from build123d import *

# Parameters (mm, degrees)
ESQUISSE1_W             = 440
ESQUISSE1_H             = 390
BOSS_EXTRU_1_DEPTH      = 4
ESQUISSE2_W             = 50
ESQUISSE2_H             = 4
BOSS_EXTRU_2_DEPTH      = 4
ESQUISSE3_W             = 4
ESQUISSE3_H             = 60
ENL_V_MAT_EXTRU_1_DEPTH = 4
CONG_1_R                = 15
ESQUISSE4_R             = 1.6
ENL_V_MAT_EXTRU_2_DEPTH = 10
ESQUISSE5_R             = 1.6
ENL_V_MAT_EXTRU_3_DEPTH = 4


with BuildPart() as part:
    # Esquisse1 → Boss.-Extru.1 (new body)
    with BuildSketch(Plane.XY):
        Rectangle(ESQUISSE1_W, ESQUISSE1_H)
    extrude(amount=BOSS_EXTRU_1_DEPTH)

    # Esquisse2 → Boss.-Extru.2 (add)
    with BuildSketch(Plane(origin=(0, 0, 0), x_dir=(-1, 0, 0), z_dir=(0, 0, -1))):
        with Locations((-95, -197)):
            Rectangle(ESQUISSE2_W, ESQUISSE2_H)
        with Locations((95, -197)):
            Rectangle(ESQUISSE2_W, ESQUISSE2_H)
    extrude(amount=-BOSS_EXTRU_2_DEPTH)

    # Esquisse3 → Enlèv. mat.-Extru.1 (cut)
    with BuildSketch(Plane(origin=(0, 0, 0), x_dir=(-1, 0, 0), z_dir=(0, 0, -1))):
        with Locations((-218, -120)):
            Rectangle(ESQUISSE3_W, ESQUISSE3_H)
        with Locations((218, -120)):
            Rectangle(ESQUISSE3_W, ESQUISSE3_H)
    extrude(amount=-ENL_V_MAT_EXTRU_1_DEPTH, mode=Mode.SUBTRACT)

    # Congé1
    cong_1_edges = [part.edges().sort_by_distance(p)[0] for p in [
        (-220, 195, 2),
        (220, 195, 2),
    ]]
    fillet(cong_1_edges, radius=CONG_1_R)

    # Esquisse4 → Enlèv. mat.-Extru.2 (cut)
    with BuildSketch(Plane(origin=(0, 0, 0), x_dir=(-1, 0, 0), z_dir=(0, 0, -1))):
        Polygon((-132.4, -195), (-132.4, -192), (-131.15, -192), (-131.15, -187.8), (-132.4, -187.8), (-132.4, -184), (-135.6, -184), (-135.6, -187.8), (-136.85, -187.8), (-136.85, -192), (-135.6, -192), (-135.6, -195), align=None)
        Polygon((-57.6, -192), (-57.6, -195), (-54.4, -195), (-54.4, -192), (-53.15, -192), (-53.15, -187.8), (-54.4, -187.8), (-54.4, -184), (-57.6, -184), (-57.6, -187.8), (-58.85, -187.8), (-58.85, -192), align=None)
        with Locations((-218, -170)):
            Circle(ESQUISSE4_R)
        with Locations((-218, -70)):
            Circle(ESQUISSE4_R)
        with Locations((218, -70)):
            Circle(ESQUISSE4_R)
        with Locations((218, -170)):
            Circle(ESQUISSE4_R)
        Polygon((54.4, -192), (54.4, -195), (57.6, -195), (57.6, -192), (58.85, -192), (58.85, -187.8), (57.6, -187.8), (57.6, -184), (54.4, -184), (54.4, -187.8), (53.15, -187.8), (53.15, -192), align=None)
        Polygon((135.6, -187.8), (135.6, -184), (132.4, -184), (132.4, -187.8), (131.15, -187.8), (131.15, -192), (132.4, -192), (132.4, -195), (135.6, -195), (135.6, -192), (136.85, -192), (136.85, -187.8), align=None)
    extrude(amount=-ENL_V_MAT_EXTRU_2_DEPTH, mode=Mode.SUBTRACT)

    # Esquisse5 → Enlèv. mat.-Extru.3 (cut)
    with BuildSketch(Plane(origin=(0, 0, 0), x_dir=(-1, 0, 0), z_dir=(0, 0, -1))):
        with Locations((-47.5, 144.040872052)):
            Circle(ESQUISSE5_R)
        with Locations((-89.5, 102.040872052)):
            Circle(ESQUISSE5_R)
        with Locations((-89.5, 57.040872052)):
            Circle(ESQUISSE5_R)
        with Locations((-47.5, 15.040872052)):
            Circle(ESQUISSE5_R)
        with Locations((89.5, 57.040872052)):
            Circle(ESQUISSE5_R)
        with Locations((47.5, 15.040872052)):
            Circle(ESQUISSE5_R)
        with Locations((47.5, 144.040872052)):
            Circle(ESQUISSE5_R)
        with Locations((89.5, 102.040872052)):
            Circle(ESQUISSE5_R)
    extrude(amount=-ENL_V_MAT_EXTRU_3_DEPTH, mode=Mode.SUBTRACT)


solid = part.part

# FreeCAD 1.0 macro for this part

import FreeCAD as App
import Part
import Sketcher
from FreeCAD import Vector


def edges_at(feature, points):
    """Names of the edges that pass closest to the given points."""
    edges = feature.Shape.Edges
    near = lambda p: min(range(len(edges)), key=lambda i: edges[i].distToShape(Part.Vertex(*p))[0])
    return sorted({f"Edge{near(p) + 1}" for p in points})

doc = App.newDocument("Part")
body = doc.addObject("PartDesign::Body", "Body")

sketch1 = doc.addObject("Sketcher::SketchObject", "Sketch")
body.addObject(sketch1)
sketch1.AttachmentSupport = (doc.XY_Plane, [""])
sketch1.MapMode = "FlatFace"
sketch1.addGeometry([
    Part.LineSegment(Vector(-220, 195, 0), Vector(-220, -195, 0)),
    Part.LineSegment(Vector(-220, -195, 0), Vector(220, -195, 0)),
    Part.LineSegment(Vector(220, -195, 0), Vector(220, 195, 0)),
    Part.LineSegment(Vector(220, 195, 0), Vector(-220, 195, 0)),
], False)
sketch1.addConstraint([
    Sketcher.Constraint("Coincident", 0, 2, 1, 1),
    Sketcher.Constraint("Coincident", 1, 2, 2, 1),
    Sketcher.Constraint("Coincident", 2, 2, 3, 1),
    Sketcher.Constraint("Coincident", 3, 2, 0, 1),
    Sketcher.Constraint("Vertical", 0),
    Sketcher.Constraint("Horizontal", 1),
    Sketcher.Constraint("Vertical", 2),
    Sketcher.Constraint("Horizontal", 3),
    Sketcher.Constraint("Symmetric", 0, 2, 2, 2, -1, 1),
    Sketcher.Constraint("DistanceX", 1, 1, 1, 2, 440.0),
    Sketcher.Constraint("DistanceY", 0, 2, 0, 1, 390.0),
])
pad1 = doc.addObject("PartDesign::Pad", "Pad")
body.addObject(pad1)
pad1.Profile = sketch1
pad1.Length = 4

sketch2 = doc.addObject("Sketcher::SketchObject", "Sketch001")
body.addObject(sketch2)
sketch2.AttachmentSupport = (doc.XY_Plane, [""])
sketch2.MapMode = "FlatFace"
sketch2.addGeometry([
    Part.LineSegment(Vector(120, -195, 0), Vector(120, -199, 0)),
    Part.LineSegment(Vector(120, -199, 0), Vector(70, -199, 0)),
    Part.LineSegment(Vector(70, -199, 0), Vector(70, -195, 0)),
    Part.LineSegment(Vector(70, -195, 0), Vector(120, -195, 0)),
    Part.LineSegment(Vector(-70, -195, 0), Vector(-70, -199, 0)),
    Part.LineSegment(Vector(-70, -199, 0), Vector(-120, -199, 0)),
    Part.LineSegment(Vector(-120, -199, 0), Vector(-120, -195, 0)),
    Part.LineSegment(Vector(-120, -195, 0), Vector(-70, -195, 0)),
], False)
sketch2.addConstraint([
    Sketcher.Constraint("Coincident", 0, 2, 1, 1),
    Sketcher.Constraint("Coincident", 1, 2, 2, 1),
    Sketcher.Constraint("Coincident", 2, 2, 3, 1),
    Sketcher.Constraint("Coincident", 3, 2, 0, 1),
    Sketcher.Constraint("Coincident", 4, 2, 5, 1),
    Sketcher.Constraint("Coincident", 5, 2, 6, 1),
    Sketcher.Constraint("Coincident", 6, 2, 7, 1),
    Sketcher.Constraint("Coincident", 7, 2, 4, 1),
    Sketcher.Constraint("Vertical", 0),
    Sketcher.Constraint("Horizontal", 1),
    Sketcher.Constraint("Vertical", 2),
    Sketcher.Constraint("Horizontal", 3),
    Sketcher.Constraint("Vertical", 4),
    Sketcher.Constraint("Horizontal", 5),
    Sketcher.Constraint("Vertical", 6),
    Sketcher.Constraint("Horizontal", 7),
    Sketcher.Constraint("Symmetric", 1, 2, 4, 2, -2),
    Sketcher.Constraint("Symmetric", 3, 2, 6, 2, -2),
    Sketcher.Constraint("DistanceX", 1, 2, 1, 1, 50.0),
    Sketcher.Constraint("DistanceY", 0, 2, 0, 1, 4.0),
    Sketcher.Constraint("DistanceX", -1, 1, 0, 2, 120.0),
    Sketcher.Constraint("DistanceY", 0, 2, -1, 1, 199.0),
])
pad2 = doc.addObject("PartDesign::Pad", "Pad001")
body.addObject(pad2)
pad2.Profile = sketch2
pad2.Length = 4

sketch3 = doc.addObject("Sketcher::SketchObject", "Sketch002")
body.addObject(sketch3)
sketch3.AttachmentSupport = (doc.XY_Plane, [""])
sketch3.MapMode = "FlatFace"
sketch3.addGeometry([
    Part.LineSegment(Vector(220, -90, 0), Vector(220, -150, 0)),
    Part.LineSegment(Vector(220, -150, 0), Vector(216, -150, 0)),
    Part.LineSegment(Vector(216, -150, 0), Vector(216, -90, 0)),
    Part.LineSegment(Vector(216, -90, 0), Vector(220, -90, 0)),
    Part.LineSegment(Vector(-216, -90, 0), Vector(-216, -150, 0)),
    Part.LineSegment(Vector(-216, -150, 0), Vector(-220, -150, 0)),
    Part.LineSegment(Vector(-220, -150, 0), Vector(-220, -90, 0)),
    Part.LineSegment(Vector(-220, -90, 0), Vector(-216, -90, 0)),
], False)
sketch3.addConstraint([
    Sketcher.Constraint("Coincident", 0, 2, 1, 1),
    Sketcher.Constraint("Coincident", 1, 2, 2, 1),
    Sketcher.Constraint("Coincident", 2, 2, 3, 1),
    Sketcher.Constraint("Coincident", 3, 2, 0, 1),
    Sketcher.Constraint("Coincident", 4, 2, 5, 1),
    Sketcher.Constraint("Coincident", 5, 2, 6, 1),
    Sketcher.Constraint("Coincident", 6, 2, 7, 1),
    Sketcher.Constraint("Coincident", 7, 2, 4, 1),
    Sketcher.Constraint("Vertical", 0),
    Sketcher.Constraint("Horizontal", 1),
    Sketcher.Constraint("Vertical", 2),
    Sketcher.Constraint("Horizontal", 3),
    Sketcher.Constraint("Vertical", 4),
    Sketcher.Constraint("Horizontal", 5),
    Sketcher.Constraint("Vertical", 6),
    Sketcher.Constraint("Horizontal", 7),
    Sketcher.Constraint("Symmetric", 1, 2, 4, 2, -2),
    Sketcher.Constraint("Symmetric", 3, 2, 6, 2, -2),
    Sketcher.Constraint("DistanceX", 1, 2, 1, 1, 4.0),
    Sketcher.Constraint("DistanceY", 0, 2, 0, 1, 60.0),
    Sketcher.Constraint("DistanceX", -1, 1, 0, 2, 220.0),
    Sketcher.Constraint("DistanceY", 0, 2, -1, 1, 150.0),
])
pocket1 = doc.addObject("PartDesign::Pocket", "Pocket")
body.addObject(pocket1)
pocket1.Profile = sketch3
pocket1.Length = 4
pocket1.Reversed = True
doc.recompute()

fillet = doc.addObject("PartDesign::Fillet", "Fillet")
body.addObject(fillet)
fillet.Base = (pocket1, edges_at(pocket1, [(-220, 195, 2), (220, 195, 2)]))
fillet.Radius = 15

sketch4 = doc.addObject("Sketcher::SketchObject", "Sketch003")
body.addObject(sketch4)
sketch4.AttachmentSupport = (doc.XY_Plane, [""])
sketch4.MapMode = "FlatFace"
sketch4.addGeometry([
    Part.LineSegment(Vector(132.4, -195, 0), Vector(132.4, -192, 0)),
    Part.LineSegment(Vector(132.4, -192, 0), Vector(131.15, -192, 0)),
    Part.LineSegment(Vector(131.15, -192, 0), Vector(131.15, -187.8, 0)),
    Part.LineSegment(Vector(131.15, -187.8, 0), Vector(132.4, -187.8, 0)),
    Part.LineSegment(Vector(132.4, -187.8, 0), Vector(132.4, -184, 0)),
    Part.LineSegment(Vector(132.4, -184, 0), Vector(135.6, -184, 0)),
    Part.LineSegment(Vector(135.6, -184, 0), Vector(135.6, -187.8, 0)),
    Part.LineSegment(Vector(135.6, -187.8, 0), Vector(136.85, -187.8, 0)),
    Part.LineSegment(Vector(136.85, -187.8, 0), Vector(136.85, -192, 0)),
    Part.LineSegment(Vector(136.85, -192, 0), Vector(135.6, -192, 0)),
    Part.LineSegment(Vector(135.6, -192, 0), Vector(135.6, -195, 0)),
    Part.LineSegment(Vector(135.6, -195, 0), Vector(132.4, -195, 0)),
    Part.LineSegment(Vector(57.6, -192, 0), Vector(57.6, -195, 0)),
    Part.LineSegment(Vector(57.6, -195, 0), Vector(54.4, -195, 0)),
    Part.LineSegment(Vector(54.4, -195, 0), Vector(54.4, -192, 0)),
    Part.LineSegment(Vector(54.4, -192, 0), Vector(53.15, -192, 0)),
    Part.LineSegment(Vector(53.15, -192, 0), Vector(53.15, -187.8, 0)),
    Part.LineSegment(Vector(53.15, -187.8, 0), Vector(54.4, -187.8, 0)),
    Part.LineSegment(Vector(54.4, -187.8, 0), Vector(54.4, -184, 0)),
    Part.LineSegment(Vector(54.4, -184, 0), Vector(57.6, -184, 0)),
    Part.LineSegment(Vector(57.6, -184, 0), Vector(57.6, -187.8, 0)),
    Part.LineSegment(Vector(57.6, -187.8, 0), Vector(58.85, -187.8, 0)),
    Part.LineSegment(Vector(58.85, -187.8, 0), Vector(58.85, -192, 0)),
    Part.LineSegment(Vector(58.85, -192, 0), Vector(57.6, -192, 0)),
    Part.Circle(Vector(218, -170, 0), Vector(0, 0, 1), 1.6),
    Part.Circle(Vector(218, -70, 0), Vector(0, 0, 1), 1.6),
    Part.Circle(Vector(-218, -70, 0), Vector(0, 0, 1), 1.6),
    Part.Circle(Vector(-218, -170, 0), Vector(0, 0, 1), 1.6),
    Part.LineSegment(Vector(-54.4, -192, 0), Vector(-54.4, -195, 0)),
    Part.LineSegment(Vector(-54.4, -195, 0), Vector(-57.6, -195, 0)),
    Part.LineSegment(Vector(-57.6, -195, 0), Vector(-57.6, -192, 0)),
    Part.LineSegment(Vector(-57.6, -192, 0), Vector(-58.85, -192, 0)),
    Part.LineSegment(Vector(-58.85, -192, 0), Vector(-58.85, -187.8, 0)),
    Part.LineSegment(Vector(-58.85, -187.8, 0), Vector(-57.6, -187.8, 0)),
    Part.LineSegment(Vector(-57.6, -187.8, 0), Vector(-57.6, -184, 0)),
    Part.LineSegment(Vector(-57.6, -184, 0), Vector(-54.4, -184, 0)),
    Part.LineSegment(Vector(-54.4, -184, 0), Vector(-54.4, -187.8, 0)),
    Part.LineSegment(Vector(-54.4, -187.8, 0), Vector(-53.15, -187.8, 0)),
    Part.LineSegment(Vector(-53.15, -187.8, 0), Vector(-53.15, -192, 0)),
    Part.LineSegment(Vector(-53.15, -192, 0), Vector(-54.4, -192, 0)),
    Part.LineSegment(Vector(-135.6, -187.8, 0), Vector(-135.6, -184, 0)),
    Part.LineSegment(Vector(-135.6, -184, 0), Vector(-132.4, -184, 0)),
    Part.LineSegment(Vector(-132.4, -184, 0), Vector(-132.4, -187.8, 0)),
    Part.LineSegment(Vector(-132.4, -187.8, 0), Vector(-131.15, -187.8, 0)),
    Part.LineSegment(Vector(-131.15, -187.8, 0), Vector(-131.15, -192, 0)),
    Part.LineSegment(Vector(-131.15, -192, 0), Vector(-132.4, -192, 0)),
    Part.LineSegment(Vector(-132.4, -192, 0), Vector(-132.4, -195, 0)),
    Part.LineSegment(Vector(-132.4, -195, 0), Vector(-135.6, -195, 0)),
    Part.LineSegment(Vector(-135.6, -195, 0), Vector(-135.6, -192, 0)),
    Part.LineSegment(Vector(-135.6, -192, 0), Vector(-136.85, -192, 0)),
    Part.LineSegment(Vector(-136.85, -192, 0), Vector(-136.85, -187.8, 0)),
    Part.LineSegment(Vector(-136.85, -187.8, 0), Vector(-135.6, -187.8, 0)),
], False)
sketch4.addConstraint([
    Sketcher.Constraint("Coincident", 0, 2, 1, 1),
    Sketcher.Constraint("Coincident", 1, 2, 2, 1),
    Sketcher.Constraint("Coincident", 2, 2, 3, 1),
    Sketcher.Constraint("Coincident", 3, 2, 4, 1),
    Sketcher.Constraint("Coincident", 4, 2, 5, 1),
    Sketcher.Constraint("Coincident", 5, 2, 6, 1),
    Sketcher.Constraint("Coincident", 6, 2, 7, 1),
    Sketcher.Constraint("Coincident", 7, 2, 8, 1),
    Sketcher.Constraint("Coincident", 8, 2, 9, 1),
    Sketcher.Constraint("Coincident", 9, 2, 10, 1),
    Sketcher.Constraint("Coincident", 10, 2, 11, 1),
    Sketcher.Constraint("Coincident", 11, 2, 0, 1),
    Sketcher.Constraint("Coincident", 12, 2, 13, 1),
    Sketcher.Constraint("Coincident", 13, 2, 14, 1),
    Sketcher.Constraint("Coincident", 14, 2, 15, 1),
    Sketcher.Constraint("Coincident", 15, 2, 16, 1),
    Sketcher.Constraint("Coincident", 16, 2, 17, 1),
    Sketcher.Constraint("Coincident", 17, 2, 18, 1),
    Sketcher.Constraint("Coincident", 18, 2, 19, 1),
    Sketcher.Constraint("Coincident", 19, 2, 20, 1),
    Sketcher.Constraint("Coincident", 20, 2, 21, 1),
    Sketcher.Constraint("Coincident", 21, 2, 22, 1),
    Sketcher.Constraint("Coincident", 22, 2, 23, 1),
    Sketcher.Constraint("Coincident", 23, 2, 12, 1),
    Sketcher.Constraint("Coincident", 28, 2, 29, 1),
    Sketcher.Constraint("Coincident", 29, 2, 30, 1),
    Sketcher.Constraint("Coincident", 30, 2, 31, 1),
    Sketcher.Constraint("Coincident", 31, 2, 32, 1),
    Sketcher.Constraint("Coincident", 32, 2, 33, 1),
    Sketcher.Constraint("Coincident", 33, 2, 34, 1),
    Sketcher.Constraint("Coincident", 34, 2, 35, 1),
    Sketcher.Constraint("Coincident", 35, 2, 36, 1),
    Sketcher.Constraint("Coincident", 36, 2, 37, 1),
    Sketcher.Constraint("Coincident", 37, 2, 38, 1),
    Sketcher.Constraint("Coincident", 38, 2, 39, 1),
    Sketcher.Constraint("Coincident", 39, 2, 28, 1),
    Sketcher.Constraint("Coincident", 40, 2, 41, 1),
    Sketcher.Constraint("Coincident", 41, 2, 42, 1),
    Sketcher.Constraint("Coincident", 42, 2, 43, 1),
    Sketcher.Constraint("Coincident", 43, 2, 44, 1),
    Sketcher.Constraint("Coincident", 44, 2, 45, 1),
    Sketcher.Constraint("Coincident", 45, 2, 46, 1),
    Sketcher.Constraint("Coincident", 46, 2, 47, 1),
    Sketcher.Constraint("Coincident", 47, 2, 48, 1),
    Sketcher.Constraint("Coincident", 48, 2, 49, 1),
    Sketcher.Constraint("Coincident", 49, 2, 50, 1),
    Sketcher.Constraint("Coincident", 50, 2, 51, 1),
    Sketcher.Constraint("Coincident", 51, 2, 40, 1),
    Sketcher.Constraint("Vertical", 0),
    Sketcher.Constraint("Horizontal", 1),
    Sketcher.Constraint("Vertical", 2),
    Sketcher.Constraint("Horizontal", 3),
    Sketcher.Constraint("Vertical", 4),
    Sketcher.Constraint("Horizontal", 5),
    Sketcher.Constraint("Vertical", 6),
    Sketcher.Constraint("Horizontal", 7),
    Sketcher.Constraint("Vertical", 8),
    Sketcher.Constraint("Horizontal", 9),
    Sketcher.Constraint("Vertical", 10),
    Sketcher.Constraint("Horizontal", 11),
    Sketcher.Constraint("Vertical", 12),
    Sketcher.Constraint("Horizontal", 13),
    Sketcher.Constraint("Vertical", 14),
    Sketcher.Constraint("Horizontal", 15),
    Sketcher.Constraint("Vertical", 16),
    Sketcher.Constraint("Horizontal", 17),
    Sketcher.Constraint("Vertical", 18),
    Sketcher.Constraint("Horizontal", 19),
    Sketcher.Constraint("Vertical", 20),
    Sketcher.Constraint("Horizontal", 21),
    Sketcher.Constraint("Vertical", 22),
    Sketcher.Constraint("Horizontal", 23),
    Sketcher.Constraint("Vertical", 28),
    Sketcher.Constraint("Horizontal", 29),
    Sketcher.Constraint("Vertical", 30),
    Sketcher.Constraint("Horizontal", 31),
    Sketcher.Constraint("Vertical", 32),
    Sketcher.Constraint("Horizontal", 33),
    Sketcher.Constraint("Vertical", 34),
    Sketcher.Constraint("Horizontal", 35),
    Sketcher.Constraint("Vertical", 36),
    Sketcher.Constraint("Horizontal", 37),
    Sketcher.Constraint("Vertical", 38),
    Sketcher.Constraint("Horizontal", 39),
    Sketcher.Constraint("Vertical", 40),
    Sketcher.Constraint("Horizontal", 41),
    Sketcher.Constraint("Vertical", 42),
    Sketcher.Constraint("Horizontal", 43),
    Sketcher.Constraint("Vertical", 44),
    Sketcher.Constraint("Horizontal", 45),
    Sketcher.Constraint("Vertical", 46),
    Sketcher.Constraint("Horizontal", 47),
    Sketcher.Constraint("Vertical", 48),
    Sketcher.Constraint("Horizontal", 49),
    Sketcher.Constraint("Vertical", 50),
    Sketcher.Constraint("Horizontal", 51),
    Sketcher.Constraint("Equal", 24, 25),
    Sketcher.Constraint("Equal", 25, 26),
    Sketcher.Constraint("Equal", 26, 27),
    Sketcher.Constraint("Symmetric", 25, 3, 26, 3, -2),
    Sketcher.Constraint("Symmetric", 24, 3, 27, 3, -2),
    Sketcher.Constraint("Symmetric", 13, 2, 28, 2, -2),
    Sketcher.Constraint("Symmetric", 23, 2, 30, 2, -2),
    Sketcher.Constraint("Symmetric", 21, 2, 32, 2, -2),
    Sketcher.Constraint("Symmetric", 19, 2, 34, 2, -2),
    Sketcher.Constraint("Symmetric", 17, 2, 36, 2, -2),
    Sketcher.Constraint("Symmetric", 15, 2, 38, 2, -2),
    Sketcher.Constraint("Symmetric", 5, 2, 40, 2, -2),
    Sketcher.Constraint("Symmetric", 3, 2, 42, 2, -2),
    Sketcher.Constraint("Symmetric", 1, 2, 44, 2, -2),
    Sketcher.Constraint("Symmetric", 11, 2, 46, 2, -2),
    Sketcher.Constraint("Symmetric", 9, 2, 48, 2, -2),
    Sketcher.Constraint("Symmetric", 7, 2, 50, 2, -2),
    Sketcher.Constraint("Horizontal", 3, 2, 6, 2),
    Sketcher.Constraint("Horizontal", 1, 2, 8, 2),
    Sketcher.Constraint("Horizontal", 11, 2, 12, 2),
    Sketcher.Constraint("Horizontal", 9, 2, 14, 2),
    Sketcher.Constraint("Horizontal", 7, 2, 16, 2),
    Sketcher.Constraint("Horizontal", 5, 2, 18, 2),
    Sketcher.Constraint("Horizontal", 17, 2, 20, 2),
    Sketcher.Constraint("Horizontal", 15, 2, 22, 2),
    Sketcher.Constraint("Vertical", 24, 3, 25, 3),
    Sketcher.Constraint("Vertical", 0, 2, 3, 2),
    Sketcher.Constraint("Vertical", 6, 2, 9, 2),
    Sketcher.Constraint("Vertical", 14, 2, 17, 2),
    Sketcher.Constraint("Vertical", 12, 2, 19, 2),
    Sketcher.Constraint("Equal", 3, 7),
    Sketcher.Constraint("Equal", 11, 13),
    Sketcher.Constraint("Equal", 9, 15),
    Sketcher.Constraint("Equal", 17, 21),
    Sketcher.Constraint("Diameter", 24, 3.2),
    Sketcher.Constraint("DistanceY", 0, 1, 0, 2, 3.0),
    Sketcher.Constraint("DistanceX", 5, 1, 5, 2, 3.2),
    Sketcher.Constraint("DistanceY", 2, 1, 2, 2, 4.2),
    Sketcher.Constraint("DistanceY", 4, 1, 4, 2, 3.8),
    Sketcher.Constraint("DistanceX", -1, 1, 24, 3, 218.0),
    Sketcher.Constraint("DistanceY", 24, 3, -1, 1, 170.0),
    Sketcher.Constraint("DistanceY", 25, 3, -1, 1, 70.0),
    Sketcher.Constraint("DistanceY", 0, 2, -1, 1, 192.0),
    Sketcher.Constraint("DistanceX", 13, 2, 11, 2, 78.0),
    Sketcher.Constraint("DistanceX", 29, 2, 13, 2, 112.0),
    Sketcher.Constraint("DistanceX", 1, 2, 1, 1, 1.25),
])
pocket2 = doc.addObject("PartDesign::Pocket", "Pocket001")
body.addObject(pocket2)
pocket2.Profile = sketch4
pocket2.Length = 10
pocket2.Reversed = True

sketch5 = doc.addObject("Sketcher::SketchObject", "Sketch004")
body.addObject(sketch5)
sketch5.AttachmentSupport = (doc.XY_Plane, [""])
sketch5.MapMode = "FlatFace"
sketch5.addGeometry([
    Part.Circle(Vector(47.5, 144.040872, 0), Vector(0, 0, 1), 1.6),
    Part.Circle(Vector(89.5, 102.040872, 0), Vector(0, 0, 1), 1.6),
    Part.Circle(Vector(89.5, 57.040872, 0), Vector(0, 0, 1), 1.6),
    Part.Circle(Vector(47.5, 15.040872, 0), Vector(0, 0, 1), 1.6),
    Part.Circle(Vector(-89.5, 57.040872, 0), Vector(0, 0, 1), 1.6),
    Part.Circle(Vector(-47.5, 15.040872, 0), Vector(0, 0, 1), 1.6),
    Part.Circle(Vector(-47.5, 144.040872, 0), Vector(0, 0, 1), 1.6),
    Part.Circle(Vector(-89.5, 102.040872, 0), Vector(0, 0, 1), 1.6),
], False)
sketch5.addConstraint([
    Sketcher.Constraint("Equal", 0, 1),
    Sketcher.Constraint("Equal", 1, 2),
    Sketcher.Constraint("Equal", 2, 3),
    Sketcher.Constraint("Equal", 3, 4),
    Sketcher.Constraint("Equal", 4, 5),
    Sketcher.Constraint("Equal", 5, 6),
    Sketcher.Constraint("Equal", 6, 7),
    Sketcher.Constraint("Symmetric", 2, 3, 4, 3, -2),
    Sketcher.Constraint("Symmetric", 3, 3, 5, 3, -2),
    Sketcher.Constraint("Symmetric", 0, 3, 6, 3, -2),
    Sketcher.Constraint("Symmetric", 1, 3, 7, 3, -2),
    Sketcher.Constraint("Vertical", 1, 3, 2, 3),
    Sketcher.Constraint("Vertical", 0, 3, 3, 3),
    Sketcher.Constraint("Diameter", 0, 3.2),
    Sketcher.Constraint("DistanceX", 0, 3, 1, 3, 42.0),
    Sketcher.Constraint("DistanceY", 1, 3, 0, 3, 42.0),
    Sketcher.Constraint("DistanceY", 2, 3, 1, 3, 45.0),
    Sketcher.Constraint("DistanceY", 3, 3, 2, 3, 42.0),
    Sketcher.Constraint("DistanceX", 4, 3, 3, 3, 137.0),
    Sketcher.Constraint("DistanceY", -1, 1, 0, 3, 144.040872),
])
pocket3 = doc.addObject("PartDesign::Pocket", "Pocket002")
body.addObject(pocket3)
pocket3.Profile = sketch5
pocket3.Length = 4
pocket3.Reversed = True

doc.recompute()
